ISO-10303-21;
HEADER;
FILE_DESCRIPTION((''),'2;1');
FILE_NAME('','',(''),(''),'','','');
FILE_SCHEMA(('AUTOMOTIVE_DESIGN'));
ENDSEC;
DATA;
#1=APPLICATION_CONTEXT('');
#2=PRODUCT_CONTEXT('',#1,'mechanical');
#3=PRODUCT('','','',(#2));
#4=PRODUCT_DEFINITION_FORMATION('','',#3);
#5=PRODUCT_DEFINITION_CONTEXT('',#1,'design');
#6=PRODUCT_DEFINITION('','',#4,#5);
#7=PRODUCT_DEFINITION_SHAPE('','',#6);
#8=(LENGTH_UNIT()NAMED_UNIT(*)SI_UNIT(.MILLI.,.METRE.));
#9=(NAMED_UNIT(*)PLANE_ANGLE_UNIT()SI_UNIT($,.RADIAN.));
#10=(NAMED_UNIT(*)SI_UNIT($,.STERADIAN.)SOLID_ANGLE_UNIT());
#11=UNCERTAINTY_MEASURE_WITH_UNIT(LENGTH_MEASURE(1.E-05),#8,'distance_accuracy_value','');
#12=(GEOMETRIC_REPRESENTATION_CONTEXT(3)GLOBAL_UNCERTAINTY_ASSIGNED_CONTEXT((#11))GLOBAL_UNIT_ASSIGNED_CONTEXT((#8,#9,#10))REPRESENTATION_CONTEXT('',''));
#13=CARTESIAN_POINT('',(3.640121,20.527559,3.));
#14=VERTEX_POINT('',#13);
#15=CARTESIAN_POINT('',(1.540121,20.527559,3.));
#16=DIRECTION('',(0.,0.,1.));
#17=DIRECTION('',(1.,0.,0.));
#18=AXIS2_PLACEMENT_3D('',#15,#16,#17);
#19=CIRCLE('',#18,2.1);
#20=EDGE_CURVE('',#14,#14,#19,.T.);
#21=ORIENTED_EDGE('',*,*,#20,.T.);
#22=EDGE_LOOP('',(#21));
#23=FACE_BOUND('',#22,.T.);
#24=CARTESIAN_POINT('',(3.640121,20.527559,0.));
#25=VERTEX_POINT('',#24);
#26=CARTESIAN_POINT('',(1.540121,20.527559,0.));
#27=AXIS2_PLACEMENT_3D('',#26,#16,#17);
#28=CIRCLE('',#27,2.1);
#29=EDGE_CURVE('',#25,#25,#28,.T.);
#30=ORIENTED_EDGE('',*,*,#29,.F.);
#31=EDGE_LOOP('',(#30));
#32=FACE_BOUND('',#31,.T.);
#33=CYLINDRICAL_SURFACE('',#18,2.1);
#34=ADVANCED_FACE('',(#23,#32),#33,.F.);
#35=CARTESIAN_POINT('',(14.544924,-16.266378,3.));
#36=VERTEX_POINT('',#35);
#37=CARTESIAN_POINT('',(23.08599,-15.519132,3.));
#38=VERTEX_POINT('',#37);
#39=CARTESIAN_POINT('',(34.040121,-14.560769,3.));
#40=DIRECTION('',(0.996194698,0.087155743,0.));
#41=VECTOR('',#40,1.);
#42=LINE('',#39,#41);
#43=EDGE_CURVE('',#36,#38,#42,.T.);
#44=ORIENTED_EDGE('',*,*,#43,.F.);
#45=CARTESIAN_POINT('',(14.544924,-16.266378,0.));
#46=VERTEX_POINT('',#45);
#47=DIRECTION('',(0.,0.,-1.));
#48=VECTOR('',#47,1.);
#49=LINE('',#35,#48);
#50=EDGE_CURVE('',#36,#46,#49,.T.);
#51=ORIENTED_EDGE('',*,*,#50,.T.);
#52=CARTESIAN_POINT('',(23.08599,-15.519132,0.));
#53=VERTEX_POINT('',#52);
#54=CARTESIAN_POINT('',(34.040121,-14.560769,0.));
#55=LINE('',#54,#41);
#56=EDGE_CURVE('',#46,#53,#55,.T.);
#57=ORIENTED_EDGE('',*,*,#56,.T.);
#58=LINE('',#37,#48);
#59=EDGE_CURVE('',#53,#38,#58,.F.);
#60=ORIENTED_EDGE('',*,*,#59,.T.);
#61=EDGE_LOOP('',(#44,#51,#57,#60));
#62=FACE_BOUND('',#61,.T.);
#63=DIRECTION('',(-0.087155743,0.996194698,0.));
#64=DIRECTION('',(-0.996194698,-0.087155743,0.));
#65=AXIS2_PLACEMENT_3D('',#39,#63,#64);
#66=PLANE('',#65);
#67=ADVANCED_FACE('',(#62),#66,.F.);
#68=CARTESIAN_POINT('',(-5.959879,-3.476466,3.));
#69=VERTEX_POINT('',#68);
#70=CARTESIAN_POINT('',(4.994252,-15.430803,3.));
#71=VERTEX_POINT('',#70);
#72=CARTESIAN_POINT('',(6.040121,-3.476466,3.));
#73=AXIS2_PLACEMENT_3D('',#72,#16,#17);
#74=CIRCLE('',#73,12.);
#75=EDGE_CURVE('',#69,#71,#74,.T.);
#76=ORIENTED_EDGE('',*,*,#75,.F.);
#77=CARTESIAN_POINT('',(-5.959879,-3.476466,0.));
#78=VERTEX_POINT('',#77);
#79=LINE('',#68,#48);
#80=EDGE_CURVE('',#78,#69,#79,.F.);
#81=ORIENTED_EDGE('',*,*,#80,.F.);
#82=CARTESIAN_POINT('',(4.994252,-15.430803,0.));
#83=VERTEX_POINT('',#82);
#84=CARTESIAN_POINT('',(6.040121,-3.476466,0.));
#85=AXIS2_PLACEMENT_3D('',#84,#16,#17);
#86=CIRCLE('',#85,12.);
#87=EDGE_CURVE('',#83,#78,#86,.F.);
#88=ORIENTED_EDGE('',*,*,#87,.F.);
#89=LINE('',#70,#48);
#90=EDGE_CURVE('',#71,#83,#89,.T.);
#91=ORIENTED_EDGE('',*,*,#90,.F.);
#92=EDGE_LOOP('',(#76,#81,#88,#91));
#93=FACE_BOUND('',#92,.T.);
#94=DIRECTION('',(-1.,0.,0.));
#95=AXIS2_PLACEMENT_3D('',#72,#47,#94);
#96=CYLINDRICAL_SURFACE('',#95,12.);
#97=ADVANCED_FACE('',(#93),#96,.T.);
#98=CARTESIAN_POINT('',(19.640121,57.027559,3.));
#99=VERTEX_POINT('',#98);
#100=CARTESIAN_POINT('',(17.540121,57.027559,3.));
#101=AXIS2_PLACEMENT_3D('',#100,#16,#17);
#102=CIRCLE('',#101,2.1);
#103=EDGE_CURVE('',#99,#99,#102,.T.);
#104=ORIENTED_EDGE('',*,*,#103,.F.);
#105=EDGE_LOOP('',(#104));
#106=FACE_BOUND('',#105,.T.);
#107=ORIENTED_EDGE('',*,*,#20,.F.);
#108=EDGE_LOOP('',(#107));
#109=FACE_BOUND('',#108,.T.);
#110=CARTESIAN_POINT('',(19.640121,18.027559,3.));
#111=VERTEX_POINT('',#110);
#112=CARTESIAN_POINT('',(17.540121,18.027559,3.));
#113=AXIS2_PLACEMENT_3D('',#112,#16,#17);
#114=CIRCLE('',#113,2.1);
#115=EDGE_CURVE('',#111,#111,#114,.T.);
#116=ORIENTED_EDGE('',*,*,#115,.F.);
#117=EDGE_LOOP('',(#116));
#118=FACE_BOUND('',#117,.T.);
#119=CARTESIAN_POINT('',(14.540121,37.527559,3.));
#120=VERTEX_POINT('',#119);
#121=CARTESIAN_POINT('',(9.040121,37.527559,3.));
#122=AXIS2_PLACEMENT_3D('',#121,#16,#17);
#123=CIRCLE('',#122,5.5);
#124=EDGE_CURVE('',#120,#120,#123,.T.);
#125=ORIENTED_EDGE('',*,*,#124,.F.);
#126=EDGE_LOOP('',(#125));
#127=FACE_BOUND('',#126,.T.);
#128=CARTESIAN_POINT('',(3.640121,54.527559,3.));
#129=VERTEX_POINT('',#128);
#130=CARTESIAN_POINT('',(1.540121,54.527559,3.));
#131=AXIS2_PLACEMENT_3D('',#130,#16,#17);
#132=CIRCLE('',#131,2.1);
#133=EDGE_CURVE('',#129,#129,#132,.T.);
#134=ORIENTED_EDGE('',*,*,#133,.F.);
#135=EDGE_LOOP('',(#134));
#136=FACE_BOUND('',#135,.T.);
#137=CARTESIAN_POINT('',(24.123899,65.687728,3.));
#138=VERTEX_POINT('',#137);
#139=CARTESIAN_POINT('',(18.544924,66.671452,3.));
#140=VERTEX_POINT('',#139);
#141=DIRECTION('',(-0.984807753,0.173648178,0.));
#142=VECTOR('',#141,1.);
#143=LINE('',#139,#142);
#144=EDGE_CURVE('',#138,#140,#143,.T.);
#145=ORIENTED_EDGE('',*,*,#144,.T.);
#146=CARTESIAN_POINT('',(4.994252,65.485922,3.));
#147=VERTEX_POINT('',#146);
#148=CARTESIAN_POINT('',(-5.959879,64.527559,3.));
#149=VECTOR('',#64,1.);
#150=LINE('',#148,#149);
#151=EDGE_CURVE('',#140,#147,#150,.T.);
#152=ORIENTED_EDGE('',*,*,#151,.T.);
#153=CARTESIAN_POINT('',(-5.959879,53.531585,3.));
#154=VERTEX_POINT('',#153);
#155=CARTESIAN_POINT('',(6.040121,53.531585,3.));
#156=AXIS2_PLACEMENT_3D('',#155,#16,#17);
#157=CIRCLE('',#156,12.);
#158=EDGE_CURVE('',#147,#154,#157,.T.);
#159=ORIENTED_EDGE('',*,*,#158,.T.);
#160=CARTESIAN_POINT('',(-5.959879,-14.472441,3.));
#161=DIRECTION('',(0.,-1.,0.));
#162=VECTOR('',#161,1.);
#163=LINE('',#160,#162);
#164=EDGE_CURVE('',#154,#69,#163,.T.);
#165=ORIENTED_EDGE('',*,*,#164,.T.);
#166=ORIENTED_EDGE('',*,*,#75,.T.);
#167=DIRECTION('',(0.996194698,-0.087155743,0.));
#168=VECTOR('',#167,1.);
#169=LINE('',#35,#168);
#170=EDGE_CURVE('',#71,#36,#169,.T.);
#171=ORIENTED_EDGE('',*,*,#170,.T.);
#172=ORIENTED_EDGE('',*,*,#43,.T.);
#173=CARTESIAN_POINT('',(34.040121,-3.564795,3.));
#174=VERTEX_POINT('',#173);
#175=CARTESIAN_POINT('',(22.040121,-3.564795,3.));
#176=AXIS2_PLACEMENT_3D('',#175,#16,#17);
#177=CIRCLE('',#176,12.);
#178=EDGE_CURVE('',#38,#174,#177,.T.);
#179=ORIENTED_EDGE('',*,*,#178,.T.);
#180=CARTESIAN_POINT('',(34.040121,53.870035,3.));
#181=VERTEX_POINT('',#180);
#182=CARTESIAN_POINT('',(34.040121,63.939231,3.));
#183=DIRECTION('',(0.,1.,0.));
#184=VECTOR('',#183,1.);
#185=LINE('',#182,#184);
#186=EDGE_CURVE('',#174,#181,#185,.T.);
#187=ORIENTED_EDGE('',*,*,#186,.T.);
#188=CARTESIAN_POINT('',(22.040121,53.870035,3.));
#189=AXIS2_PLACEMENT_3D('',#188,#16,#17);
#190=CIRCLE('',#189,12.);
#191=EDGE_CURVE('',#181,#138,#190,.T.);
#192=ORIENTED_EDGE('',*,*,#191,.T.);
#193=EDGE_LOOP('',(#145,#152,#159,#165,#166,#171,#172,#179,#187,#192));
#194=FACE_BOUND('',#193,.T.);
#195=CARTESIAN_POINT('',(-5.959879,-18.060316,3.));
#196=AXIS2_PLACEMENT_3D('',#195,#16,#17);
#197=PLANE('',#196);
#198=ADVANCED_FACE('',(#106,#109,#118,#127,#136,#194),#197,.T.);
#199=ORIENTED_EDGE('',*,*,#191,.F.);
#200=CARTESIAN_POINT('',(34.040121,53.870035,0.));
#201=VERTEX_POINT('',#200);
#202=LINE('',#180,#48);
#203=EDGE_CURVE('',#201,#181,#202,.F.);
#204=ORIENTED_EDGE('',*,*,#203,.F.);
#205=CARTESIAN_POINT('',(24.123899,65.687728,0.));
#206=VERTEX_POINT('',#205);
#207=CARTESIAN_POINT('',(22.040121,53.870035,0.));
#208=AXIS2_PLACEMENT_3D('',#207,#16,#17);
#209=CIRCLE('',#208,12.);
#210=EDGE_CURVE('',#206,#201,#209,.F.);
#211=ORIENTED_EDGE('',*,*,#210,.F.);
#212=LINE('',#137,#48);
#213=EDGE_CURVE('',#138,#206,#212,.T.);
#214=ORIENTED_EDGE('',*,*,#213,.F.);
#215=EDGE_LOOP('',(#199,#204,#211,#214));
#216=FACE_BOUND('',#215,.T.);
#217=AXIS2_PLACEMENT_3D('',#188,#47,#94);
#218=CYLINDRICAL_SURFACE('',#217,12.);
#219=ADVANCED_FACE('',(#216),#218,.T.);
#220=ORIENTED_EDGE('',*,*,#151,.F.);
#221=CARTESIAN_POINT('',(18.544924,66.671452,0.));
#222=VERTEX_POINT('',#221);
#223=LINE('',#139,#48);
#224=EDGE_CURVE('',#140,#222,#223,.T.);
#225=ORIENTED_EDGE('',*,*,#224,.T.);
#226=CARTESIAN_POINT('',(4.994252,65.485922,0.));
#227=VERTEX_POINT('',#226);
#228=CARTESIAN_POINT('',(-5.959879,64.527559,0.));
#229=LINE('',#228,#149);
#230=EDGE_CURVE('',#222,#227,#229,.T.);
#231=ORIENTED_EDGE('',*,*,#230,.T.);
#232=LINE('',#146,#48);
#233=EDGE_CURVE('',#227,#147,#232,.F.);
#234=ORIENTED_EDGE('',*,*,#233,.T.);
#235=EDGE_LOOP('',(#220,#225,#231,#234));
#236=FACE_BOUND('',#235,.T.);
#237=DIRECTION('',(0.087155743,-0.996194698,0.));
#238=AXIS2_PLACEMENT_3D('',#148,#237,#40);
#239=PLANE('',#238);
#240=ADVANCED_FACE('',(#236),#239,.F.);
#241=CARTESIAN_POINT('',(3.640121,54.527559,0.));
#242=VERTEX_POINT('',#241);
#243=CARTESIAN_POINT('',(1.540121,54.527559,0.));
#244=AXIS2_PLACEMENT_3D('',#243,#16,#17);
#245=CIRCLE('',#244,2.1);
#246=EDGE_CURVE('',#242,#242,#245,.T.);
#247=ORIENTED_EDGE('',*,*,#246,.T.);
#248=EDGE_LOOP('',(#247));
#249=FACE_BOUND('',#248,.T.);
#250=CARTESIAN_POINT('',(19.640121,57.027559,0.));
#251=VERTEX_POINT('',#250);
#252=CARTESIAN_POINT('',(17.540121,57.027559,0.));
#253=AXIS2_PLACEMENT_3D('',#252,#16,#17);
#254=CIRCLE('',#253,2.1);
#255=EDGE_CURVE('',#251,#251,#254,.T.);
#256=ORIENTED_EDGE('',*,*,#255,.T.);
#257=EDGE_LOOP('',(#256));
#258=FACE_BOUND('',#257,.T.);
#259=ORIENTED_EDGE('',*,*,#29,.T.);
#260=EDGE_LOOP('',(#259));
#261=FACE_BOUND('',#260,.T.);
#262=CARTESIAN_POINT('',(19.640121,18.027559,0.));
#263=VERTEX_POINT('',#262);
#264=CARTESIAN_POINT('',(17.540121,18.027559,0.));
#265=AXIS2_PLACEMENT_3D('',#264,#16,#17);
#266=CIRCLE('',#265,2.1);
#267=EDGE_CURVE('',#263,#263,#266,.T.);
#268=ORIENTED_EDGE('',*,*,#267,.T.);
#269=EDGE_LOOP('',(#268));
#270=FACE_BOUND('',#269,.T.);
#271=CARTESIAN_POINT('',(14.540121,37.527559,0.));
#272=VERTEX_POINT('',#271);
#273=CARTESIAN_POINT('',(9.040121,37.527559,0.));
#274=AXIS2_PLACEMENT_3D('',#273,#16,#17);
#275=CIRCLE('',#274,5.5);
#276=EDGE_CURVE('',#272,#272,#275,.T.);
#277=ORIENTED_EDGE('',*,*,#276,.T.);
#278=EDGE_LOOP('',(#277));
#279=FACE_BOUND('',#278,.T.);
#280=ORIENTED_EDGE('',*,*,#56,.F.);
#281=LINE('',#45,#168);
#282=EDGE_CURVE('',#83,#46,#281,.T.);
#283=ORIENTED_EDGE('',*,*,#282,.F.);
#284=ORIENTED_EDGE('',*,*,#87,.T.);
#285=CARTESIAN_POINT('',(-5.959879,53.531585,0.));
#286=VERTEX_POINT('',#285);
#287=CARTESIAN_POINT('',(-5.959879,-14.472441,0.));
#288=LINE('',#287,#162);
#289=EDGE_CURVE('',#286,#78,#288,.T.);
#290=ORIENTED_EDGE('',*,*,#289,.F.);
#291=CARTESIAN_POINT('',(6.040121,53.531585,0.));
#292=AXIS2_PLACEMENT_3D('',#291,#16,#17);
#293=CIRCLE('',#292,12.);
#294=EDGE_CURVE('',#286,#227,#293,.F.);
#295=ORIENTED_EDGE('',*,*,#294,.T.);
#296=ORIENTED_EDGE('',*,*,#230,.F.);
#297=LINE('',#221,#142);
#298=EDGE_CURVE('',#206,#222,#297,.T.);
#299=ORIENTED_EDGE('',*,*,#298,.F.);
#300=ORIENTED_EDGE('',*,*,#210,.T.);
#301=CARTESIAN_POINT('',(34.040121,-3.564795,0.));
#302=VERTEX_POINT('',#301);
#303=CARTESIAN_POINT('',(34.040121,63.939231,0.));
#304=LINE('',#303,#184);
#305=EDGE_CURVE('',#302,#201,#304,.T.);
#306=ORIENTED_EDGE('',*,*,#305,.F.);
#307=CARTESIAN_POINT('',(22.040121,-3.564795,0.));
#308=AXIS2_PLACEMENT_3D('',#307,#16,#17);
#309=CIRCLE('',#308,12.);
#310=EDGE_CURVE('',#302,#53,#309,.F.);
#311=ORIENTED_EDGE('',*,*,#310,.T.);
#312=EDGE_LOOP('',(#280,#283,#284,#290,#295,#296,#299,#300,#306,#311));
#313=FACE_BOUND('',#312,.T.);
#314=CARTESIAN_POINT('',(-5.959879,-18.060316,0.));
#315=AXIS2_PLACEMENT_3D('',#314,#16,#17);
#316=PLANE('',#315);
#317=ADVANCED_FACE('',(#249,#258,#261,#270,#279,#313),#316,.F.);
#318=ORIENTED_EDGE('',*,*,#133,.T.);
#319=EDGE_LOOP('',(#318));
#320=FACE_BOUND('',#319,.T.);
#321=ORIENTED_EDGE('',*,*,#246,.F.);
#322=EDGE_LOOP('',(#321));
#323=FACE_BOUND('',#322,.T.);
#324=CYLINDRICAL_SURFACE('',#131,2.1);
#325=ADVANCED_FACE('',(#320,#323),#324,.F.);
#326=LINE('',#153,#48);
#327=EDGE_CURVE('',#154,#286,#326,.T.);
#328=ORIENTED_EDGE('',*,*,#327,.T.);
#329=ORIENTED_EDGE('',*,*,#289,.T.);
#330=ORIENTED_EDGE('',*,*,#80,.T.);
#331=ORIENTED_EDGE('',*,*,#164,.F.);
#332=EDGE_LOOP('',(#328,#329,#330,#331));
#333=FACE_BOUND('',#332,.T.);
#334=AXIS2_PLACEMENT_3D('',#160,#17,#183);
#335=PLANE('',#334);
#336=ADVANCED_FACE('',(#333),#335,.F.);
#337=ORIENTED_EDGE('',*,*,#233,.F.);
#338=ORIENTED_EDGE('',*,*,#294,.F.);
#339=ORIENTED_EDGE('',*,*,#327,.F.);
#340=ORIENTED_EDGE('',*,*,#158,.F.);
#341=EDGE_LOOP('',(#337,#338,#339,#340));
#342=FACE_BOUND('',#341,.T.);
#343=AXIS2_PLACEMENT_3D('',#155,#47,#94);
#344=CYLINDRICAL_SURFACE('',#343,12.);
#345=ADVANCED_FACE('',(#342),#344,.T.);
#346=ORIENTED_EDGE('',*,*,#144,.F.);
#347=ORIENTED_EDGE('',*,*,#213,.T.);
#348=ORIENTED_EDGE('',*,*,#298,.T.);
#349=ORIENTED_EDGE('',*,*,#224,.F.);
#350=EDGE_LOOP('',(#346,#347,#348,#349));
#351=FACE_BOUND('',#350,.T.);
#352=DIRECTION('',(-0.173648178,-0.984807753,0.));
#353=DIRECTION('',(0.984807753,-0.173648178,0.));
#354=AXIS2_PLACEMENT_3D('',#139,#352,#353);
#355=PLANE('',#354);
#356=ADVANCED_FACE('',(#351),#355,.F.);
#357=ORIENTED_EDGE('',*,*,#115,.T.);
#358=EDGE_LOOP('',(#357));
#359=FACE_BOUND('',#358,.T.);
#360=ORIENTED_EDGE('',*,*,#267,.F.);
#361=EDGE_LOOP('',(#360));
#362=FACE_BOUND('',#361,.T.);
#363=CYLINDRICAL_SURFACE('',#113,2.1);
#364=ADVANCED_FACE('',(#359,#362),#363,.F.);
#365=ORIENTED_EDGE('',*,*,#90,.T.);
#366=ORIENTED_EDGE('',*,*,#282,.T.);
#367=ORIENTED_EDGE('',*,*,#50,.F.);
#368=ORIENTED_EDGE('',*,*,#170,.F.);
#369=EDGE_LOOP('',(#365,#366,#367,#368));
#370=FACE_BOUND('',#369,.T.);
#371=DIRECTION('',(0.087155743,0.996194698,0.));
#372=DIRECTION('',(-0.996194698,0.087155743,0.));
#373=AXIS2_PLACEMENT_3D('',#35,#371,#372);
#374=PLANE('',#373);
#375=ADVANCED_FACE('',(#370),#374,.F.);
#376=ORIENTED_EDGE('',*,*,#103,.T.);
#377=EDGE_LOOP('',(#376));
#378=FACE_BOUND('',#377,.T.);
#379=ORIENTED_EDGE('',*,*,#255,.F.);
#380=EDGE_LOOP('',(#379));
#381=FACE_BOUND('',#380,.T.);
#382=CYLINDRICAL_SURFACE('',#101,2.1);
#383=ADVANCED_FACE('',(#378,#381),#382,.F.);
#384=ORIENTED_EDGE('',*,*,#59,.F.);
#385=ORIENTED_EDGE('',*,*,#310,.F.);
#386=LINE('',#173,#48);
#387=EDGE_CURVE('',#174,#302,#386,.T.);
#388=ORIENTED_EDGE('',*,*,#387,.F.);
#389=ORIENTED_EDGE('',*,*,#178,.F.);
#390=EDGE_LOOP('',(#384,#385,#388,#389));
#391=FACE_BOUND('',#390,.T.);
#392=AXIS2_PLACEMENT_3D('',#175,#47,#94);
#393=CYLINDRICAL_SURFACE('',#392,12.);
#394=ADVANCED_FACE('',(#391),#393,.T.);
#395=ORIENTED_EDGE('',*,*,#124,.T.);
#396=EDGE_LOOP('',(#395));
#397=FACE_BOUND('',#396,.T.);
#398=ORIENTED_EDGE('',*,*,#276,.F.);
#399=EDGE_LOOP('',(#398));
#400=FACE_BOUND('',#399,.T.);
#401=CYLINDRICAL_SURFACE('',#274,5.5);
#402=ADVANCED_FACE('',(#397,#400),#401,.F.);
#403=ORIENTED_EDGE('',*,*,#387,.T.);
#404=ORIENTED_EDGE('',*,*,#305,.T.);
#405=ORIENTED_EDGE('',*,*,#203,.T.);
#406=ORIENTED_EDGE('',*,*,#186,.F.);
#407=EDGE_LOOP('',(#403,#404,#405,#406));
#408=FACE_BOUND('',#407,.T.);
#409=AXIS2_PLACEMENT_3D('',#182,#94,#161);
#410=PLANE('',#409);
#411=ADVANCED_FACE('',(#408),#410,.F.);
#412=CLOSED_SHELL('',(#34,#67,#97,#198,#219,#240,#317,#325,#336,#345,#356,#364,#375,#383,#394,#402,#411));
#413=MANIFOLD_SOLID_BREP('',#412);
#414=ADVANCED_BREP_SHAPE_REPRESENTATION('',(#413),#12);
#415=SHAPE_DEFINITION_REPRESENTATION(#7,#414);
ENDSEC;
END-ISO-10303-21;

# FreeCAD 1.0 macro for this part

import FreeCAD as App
import Part
import Sketcher
Q = App.Units.Quantity


def edges_at(feature, points):
    """Names of the edges that pass closest to the given points."""
    edges = feature.Shape.Edges
    near = lambda p: min(range(len(edges)), key=lambda i: edges[i].distToShape(Part.Vertex(*p))[0])
    return sorted({f"Edge{near(p) + 1}" for p in points})

doc = App.newDocument("Part")
body = doc.addObject("PartDesign::Body", "Body")

sketch1 = body.newObject("Sketcher::SketchObject", "Sketch")
sketch1.AttachmentSupport = (doc.getObject("XY_Plane"), [""])
sketch1.MapMode = "FlatFace"
sketch1.addGeometry([
    Part.LineSegment(App.Vector(19, 67, 0), App.Vector(-6, 65, 0)),
    Part.LineSegment(App.Vector(-6, 65, 0), App.Vector(-6, -14, 0)),
    Part.LineSegment(App.Vector(-6, -14, 0), App.Vector(15, -16, 0)),
    Part.LineSegment(App.Vector(15, -16, 0), App.Vector(34, -15, 0)),
    Part.LineSegment(App.Vector(34, -15, 0), App.Vector(34, 64, 0)),
    Part.LineSegment(App.Vector(34, 64, 0), App.Vector(19, 67, 0)),
], False)
sketch1.addConstraint([
    Sketcher.Constraint("Coincident", 0, 2, 1, 1),
    Sketcher.Constraint("Coincident", 1, 2, 2, 1),
    Sketcher.Constraint("Coincident", 2, 2, 3, 1),
    Sketcher.Constraint("Coincident", 3, 2, 4, 1),
    Sketcher.Constraint("Coincident", 4, 2, 5, 1),
    Sketcher.Constraint("Coincident", 5, 2, 0, 1),
    Sketcher.Constraint("Vertical", 1),
    Sketcher.Constraint("Vertical", 4),
    Sketcher.Constraint("Parallel", 0, 3),
    Sketcher.Constraint("DistanceY", 1, 2, 1, 1, Q("79 mm")),
    Sketcher.Constraint("Angle", 0, Q("-175 deg")),
    Sketcher.Constraint("Angle", 2, Q("-5 deg")),
    Sketcher.Constraint("Angle", 5, Q("170 deg")),
    Sketcher.Constraint("DistanceY", 4, 1, 4, 2, Q("78.5 mm")),
    Sketcher.Constraint("DistanceX", 1, 2, 3, 2, Q("40 mm")),
    Sketcher.Constraint("DistanceX", 2, 2, 5, 2, Q("4 mm")),
    Sketcher.Constraint("DistanceX", 0, 2, -1, 1, Q("5.959879 mm")),
    Sketcher.Constraint("DistanceY", -1, 1, 0, 2, Q("64.527559 mm")),
])
pad1 = body.newObject("PartDesign::Pad", "Pad")
pad1.Profile = sketch1
pad1.Length = 3

sketch2 = body.newObject("Sketcher::SketchObject", "Sketch001")
sketch2.AttachmentSupport = (doc.getObject("XY_Plane"), [""])
sketch2.MapMode = "FlatFace"
sketch2.AttachmentOffset = App.Placement(App.Vector(0, 0, 3), App.Rotation())
sketch2.addGeometry(Part.Circle(App.Vector(9, 38, 0), App.Vector(0, 0, 1), 6), False)
sketch2.addConstraint([
    Sketcher.Constraint("Diameter", 0, Q("11 mm")),
    Sketcher.Constraint("DistanceX", -1, 1, 0, 3, Q("9.040121 mm")),
    Sketcher.Constraint("DistanceY", -1, 1, 0, 3, Q("37.527559 mm")),
])
pocket1 = body.newObject("PartDesign::Pocket", "Pocket")
pocket1.Profile = sketch2
pocket1.Type = "ThroughAll"
doc.recompute()

fillet = body.newObject("PartDesign::Fillet", "Fillet")
fillet.Base = (pocket1, edges_at(pocket1, [
    (-5.96, 64.528, 1.5),
    (-5.96, -14.472, 1.5),
    (34.04, 63.939, 1.5),
    (34.04, -14.561, 1.5),
]))
fillet.Radius = 12

sketch3 = body.newObject("Sketcher::SketchObject", "Sketch002")
sketch3.AttachmentSupport = (doc.getObject("XY_Plane"), [""])
sketch3.MapMode = "FlatFace"
sketch3.AttachmentOffset = App.Placement(App.Vector(0, 0, 3), App.Rotation())
sketch3.addGeometry([
    Part.Circle(App.Vector(1.5, 54.5, 0), App.Vector(0, 0, 1), 2.1),
    Part.Circle(App.Vector(17.5, 57, 0), App.Vector(0, 0, 1), 2.1),
    Part.Circle(App.Vector(1.5, 20.5, 0), App.Vector(0, 0, 1), 2.1),
    Part.Circle(App.Vector(17.5, 18, 0), App.Vector(0, 0, 1), 2.1),
], False)
sketch3.addConstraint([
    Sketcher.Constraint("Equal", 0, 1),
    Sketcher.Constraint("Equal", 1, 2),
    Sketcher.Constraint("Equal", 2, 3),
    Sketcher.Constraint("Vertical", 0, 3, 2, 3),
    Sketcher.Constraint("Vertical", 1, 3, 3, 3),
    Sketcher.Constraint("Diameter", 0, Q("4.2 mm")),
    Sketcher.Constraint("DistanceX", 0, 3, 1, 3, Q("16 mm")),
    Sketcher.Constraint("DistanceY", 2, 3, 0, 3, Q("34 mm")),
    Sketcher.Constraint("DistanceY", 3, 3, 1, 3, Q("39 mm")),
    Sketcher.Constraint("DistanceY", 0, 3, 1, 3, Q("2.5 mm")),
    Sketcher.Constraint("DistanceX", -1, 1, 0, 3, Q("1.540121 mm")),
    Sketcher.Constraint("DistanceY", -1, 1, 0, 3, Q("54.527559 mm")),
])
doc.recompute()
hole = body.newObject("PartDesign::Hole", "Hole")
hole.Profile = sketch3
hole.ThreadType = "None"
hole.Diameter = 4.2
hole.DepthType = "Dimension"
hole.Depth = 3
hole.DrillPoint = "Angled"
hole.DrillPointAngle = 118

doc.recompute()
